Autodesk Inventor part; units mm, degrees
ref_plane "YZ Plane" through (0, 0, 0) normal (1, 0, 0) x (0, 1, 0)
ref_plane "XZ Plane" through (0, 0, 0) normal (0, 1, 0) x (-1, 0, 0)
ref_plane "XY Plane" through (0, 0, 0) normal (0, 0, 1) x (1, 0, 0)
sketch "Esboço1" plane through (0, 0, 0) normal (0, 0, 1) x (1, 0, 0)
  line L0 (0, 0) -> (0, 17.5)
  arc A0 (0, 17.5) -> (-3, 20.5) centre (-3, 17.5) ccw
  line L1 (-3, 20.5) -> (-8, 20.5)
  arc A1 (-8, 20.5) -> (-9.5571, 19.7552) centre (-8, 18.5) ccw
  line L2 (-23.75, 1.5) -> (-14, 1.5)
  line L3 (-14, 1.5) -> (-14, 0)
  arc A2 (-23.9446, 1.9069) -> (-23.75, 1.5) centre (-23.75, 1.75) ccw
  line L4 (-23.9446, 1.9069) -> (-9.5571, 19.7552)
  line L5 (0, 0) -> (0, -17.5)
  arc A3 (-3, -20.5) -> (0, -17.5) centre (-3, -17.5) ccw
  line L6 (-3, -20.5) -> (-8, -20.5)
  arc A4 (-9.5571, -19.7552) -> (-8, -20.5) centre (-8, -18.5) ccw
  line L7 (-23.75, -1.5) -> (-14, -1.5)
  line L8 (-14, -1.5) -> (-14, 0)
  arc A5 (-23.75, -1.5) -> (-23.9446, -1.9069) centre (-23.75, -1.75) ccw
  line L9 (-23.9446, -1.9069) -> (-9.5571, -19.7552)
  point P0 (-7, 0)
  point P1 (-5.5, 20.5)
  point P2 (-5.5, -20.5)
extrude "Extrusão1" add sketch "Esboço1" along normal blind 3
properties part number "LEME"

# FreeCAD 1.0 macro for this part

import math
import FreeCAD as App
import Part
import Sketcher
from FreeCAD import Vector

doc = App.newDocument("Part")
body = doc.addObject("PartDesign::Body", "Body")

sketch1 = body.newObject("Sketcher::SketchObject", "Sketch")
sketch1.AttachmentSupport = (doc.getObject("XY_Plane"), [""])
sketch1.MapMode = "FlatFace"
sketch1.addGeometry(Part.LineSegment(Vector(0, -17.5, 0), Vector(0, 17.5, 0)), False)
sketch1.addGeometry(Part.ArcOfCircle(Part.Circle(Vector(-3, 17.5, 0), Vector(0, 0, 1), 3), math.radians(0), math.radians(90)), False)
sketch1.addGeometry(Part.LineSegment(Vector(-3, 20.5, 0), Vector(-8, 20.5, 0)), False)
sketch1.addGeometry(Part.ArcOfCircle(Part.Circle(Vector(-8, 18.5, 0), Vector(0, 0, 1), 2), math.radians(90), math.radians(141)), False)
sketch1.addGeometry(Part.LineSegment(Vector(-9.56, 19.76, 0), Vector(-23.94, 1.91, 0)), False)
sketch1.addGeometry(Part.ArcOfCircle(Part.Circle(Vector(-23.75, 1.75, 0), Vector(0, 0, 1), 0.25), math.radians(141), math.radians(270)), False)
sketch1.addGeometry(Part.LineSegment(Vector(-23.75, 1.5, 0), Vector(-14, 1.5, 0)), False)
sketch1.addGeometry(Part.LineSegment(Vector(-14, 1.5, 0), Vector(-14, -1.5, 0)), False)
sketch1.addGeometry(Part.LineSegment(Vector(-14, -1.5, 0), Vector(-23.75, -1.5, 0)), False)
sketch1.addGeometry(Part.ArcOfCircle(Part.Circle(Vector(-23.75, -1.75, 0), Vector(0, 0, 1), 0.25), math.radians(90), math.radians(219)), False)
sketch1.addGeometry(Part.LineSegment(Vector(-23.94, -1.91, 0), Vector(-9.56, -19.76, 0)), False)
sketch1.addGeometry(Part.ArcOfCircle(Part.Circle(Vector(-8, -18.5, 0), Vector(0, 0, 1), 2), math.radians(-141), math.radians(-90)), False)
sketch1.addGeometry(Part.LineSegment(Vector(-8, -20.5, 0), Vector(-3, -20.5, 0)), False)
sketch1.addGeometry(Part.ArcOfCircle(Part.Circle(Vector(-3, -17.5, 0), Vector(0, 0, 1), 3), math.radians(-90), math.radians(0)), False)
sketch1.addConstraint(Sketcher.Constraint("Tangent", 0, 2, 1, 1))
sketch1.addConstraint(Sketcher.Constraint("Tangent", 1, 2, 2, 1))
sketch1.addConstraint(Sketcher.Constraint("Tangent", 2, 2, 3, 1))
sketch1.addConstraint(Sketcher.Constraint("Tangent", 3, 2, 4, 1))
sketch1.addConstraint(Sketcher.Constraint("Tangent", 4, 2, 5, 1))
sketch1.addConstraint(Sketcher.Constraint("Tangent", 5, 2, 6, 1))
sketch1.addConstraint(Sketcher.Constraint("Coincident", 6, 2, 7, 1))
sketch1.addConstraint(Sketcher.Constraint("Coincident", 7, 2, 8, 1))
sketch1.addConstraint(Sketcher.Constraint("Tangent", 8, 2, 9, 1))
sketch1.addConstraint(Sketcher.Constraint("Tangent", 9, 2, 10, 1))
sketch1.addConstraint(Sketcher.Constraint("Tangent", 10, 2, 11, 1))
sketch1.addConstraint(Sketcher.Constraint("Tangent", 11, 2, 12, 1))
sketch1.addConstraint(Sketcher.Constraint("Tangent", 12, 2, 13, 1))
sketch1.addConstraint(Sketcher.Constraint("Tangent", 13, 2, 0, 1))
sketch1.addConstraint(Sketcher.Constraint("Vertical", 0))
sketch1.addConstraint(Sketcher.Constraint("Horizontal", 2))
sketch1.addConstraint(Sketcher.Constraint("Horizontal", 6))
sketch1.addConstraint(Sketcher.Constraint("Vertical", 7))
sketch1.addConstraint(Sketcher.Constraint("Horizontal", 8))
sketch1.addConstraint(Sketcher.Constraint("Horizontal", 12))
sketch1.addConstraint(Sketcher.Constraint("Equal", 5, 9))
sketch1.addConstraint(Sketcher.Constraint("Equal", 3, 11))
sketch1.addConstraint(Sketcher.Constraint("Equal", 1, 13))
sketch1.addConstraint(Sketcher.Constraint("Symmetric", 0, 2, 13, 2, -1, 1))
sketch1.addConstraint(Sketcher.Constraint("Symmetric", 5, 3, 9, 3, -1))
sketch1.addConstraint(Sketcher.Constraint("Vertical", 3, 3, 11, 3))
sketch1.addConstraint(Sketcher.Constraint("Radius", 1, 3.0))
sketch1.addConstraint(Sketcher.Constraint("Radius", 3, 2.0))
sketch1.addConstraint(Sketcher.Constraint("DistanceX", 2, 2, 2, 1, 5.0))
sketch1.addConstraint(Sketcher.Constraint("DistanceY", 0, 1, 0, 2, 35.0))
sketch1.addConstraint(Sketcher.Constraint("DistanceY", 7, 2, 7, 1, 3.0))
sketch1.addConstraint(Sketcher.Constraint("Radius", 5, 0.25))
sketch1.addConstraint(Sketcher.Constraint("DistanceX", 6, 2, -1, 1, 14.0))
sketch1.addConstraint(Sketcher.Constraint("DistanceX", 6, 1, 6, 2, 9.75))
pad1 = body.newObject("PartDesign::Pad", "Pad")
pad1.Profile = sketch1
pad1.Length = 3

doc.recompute()
